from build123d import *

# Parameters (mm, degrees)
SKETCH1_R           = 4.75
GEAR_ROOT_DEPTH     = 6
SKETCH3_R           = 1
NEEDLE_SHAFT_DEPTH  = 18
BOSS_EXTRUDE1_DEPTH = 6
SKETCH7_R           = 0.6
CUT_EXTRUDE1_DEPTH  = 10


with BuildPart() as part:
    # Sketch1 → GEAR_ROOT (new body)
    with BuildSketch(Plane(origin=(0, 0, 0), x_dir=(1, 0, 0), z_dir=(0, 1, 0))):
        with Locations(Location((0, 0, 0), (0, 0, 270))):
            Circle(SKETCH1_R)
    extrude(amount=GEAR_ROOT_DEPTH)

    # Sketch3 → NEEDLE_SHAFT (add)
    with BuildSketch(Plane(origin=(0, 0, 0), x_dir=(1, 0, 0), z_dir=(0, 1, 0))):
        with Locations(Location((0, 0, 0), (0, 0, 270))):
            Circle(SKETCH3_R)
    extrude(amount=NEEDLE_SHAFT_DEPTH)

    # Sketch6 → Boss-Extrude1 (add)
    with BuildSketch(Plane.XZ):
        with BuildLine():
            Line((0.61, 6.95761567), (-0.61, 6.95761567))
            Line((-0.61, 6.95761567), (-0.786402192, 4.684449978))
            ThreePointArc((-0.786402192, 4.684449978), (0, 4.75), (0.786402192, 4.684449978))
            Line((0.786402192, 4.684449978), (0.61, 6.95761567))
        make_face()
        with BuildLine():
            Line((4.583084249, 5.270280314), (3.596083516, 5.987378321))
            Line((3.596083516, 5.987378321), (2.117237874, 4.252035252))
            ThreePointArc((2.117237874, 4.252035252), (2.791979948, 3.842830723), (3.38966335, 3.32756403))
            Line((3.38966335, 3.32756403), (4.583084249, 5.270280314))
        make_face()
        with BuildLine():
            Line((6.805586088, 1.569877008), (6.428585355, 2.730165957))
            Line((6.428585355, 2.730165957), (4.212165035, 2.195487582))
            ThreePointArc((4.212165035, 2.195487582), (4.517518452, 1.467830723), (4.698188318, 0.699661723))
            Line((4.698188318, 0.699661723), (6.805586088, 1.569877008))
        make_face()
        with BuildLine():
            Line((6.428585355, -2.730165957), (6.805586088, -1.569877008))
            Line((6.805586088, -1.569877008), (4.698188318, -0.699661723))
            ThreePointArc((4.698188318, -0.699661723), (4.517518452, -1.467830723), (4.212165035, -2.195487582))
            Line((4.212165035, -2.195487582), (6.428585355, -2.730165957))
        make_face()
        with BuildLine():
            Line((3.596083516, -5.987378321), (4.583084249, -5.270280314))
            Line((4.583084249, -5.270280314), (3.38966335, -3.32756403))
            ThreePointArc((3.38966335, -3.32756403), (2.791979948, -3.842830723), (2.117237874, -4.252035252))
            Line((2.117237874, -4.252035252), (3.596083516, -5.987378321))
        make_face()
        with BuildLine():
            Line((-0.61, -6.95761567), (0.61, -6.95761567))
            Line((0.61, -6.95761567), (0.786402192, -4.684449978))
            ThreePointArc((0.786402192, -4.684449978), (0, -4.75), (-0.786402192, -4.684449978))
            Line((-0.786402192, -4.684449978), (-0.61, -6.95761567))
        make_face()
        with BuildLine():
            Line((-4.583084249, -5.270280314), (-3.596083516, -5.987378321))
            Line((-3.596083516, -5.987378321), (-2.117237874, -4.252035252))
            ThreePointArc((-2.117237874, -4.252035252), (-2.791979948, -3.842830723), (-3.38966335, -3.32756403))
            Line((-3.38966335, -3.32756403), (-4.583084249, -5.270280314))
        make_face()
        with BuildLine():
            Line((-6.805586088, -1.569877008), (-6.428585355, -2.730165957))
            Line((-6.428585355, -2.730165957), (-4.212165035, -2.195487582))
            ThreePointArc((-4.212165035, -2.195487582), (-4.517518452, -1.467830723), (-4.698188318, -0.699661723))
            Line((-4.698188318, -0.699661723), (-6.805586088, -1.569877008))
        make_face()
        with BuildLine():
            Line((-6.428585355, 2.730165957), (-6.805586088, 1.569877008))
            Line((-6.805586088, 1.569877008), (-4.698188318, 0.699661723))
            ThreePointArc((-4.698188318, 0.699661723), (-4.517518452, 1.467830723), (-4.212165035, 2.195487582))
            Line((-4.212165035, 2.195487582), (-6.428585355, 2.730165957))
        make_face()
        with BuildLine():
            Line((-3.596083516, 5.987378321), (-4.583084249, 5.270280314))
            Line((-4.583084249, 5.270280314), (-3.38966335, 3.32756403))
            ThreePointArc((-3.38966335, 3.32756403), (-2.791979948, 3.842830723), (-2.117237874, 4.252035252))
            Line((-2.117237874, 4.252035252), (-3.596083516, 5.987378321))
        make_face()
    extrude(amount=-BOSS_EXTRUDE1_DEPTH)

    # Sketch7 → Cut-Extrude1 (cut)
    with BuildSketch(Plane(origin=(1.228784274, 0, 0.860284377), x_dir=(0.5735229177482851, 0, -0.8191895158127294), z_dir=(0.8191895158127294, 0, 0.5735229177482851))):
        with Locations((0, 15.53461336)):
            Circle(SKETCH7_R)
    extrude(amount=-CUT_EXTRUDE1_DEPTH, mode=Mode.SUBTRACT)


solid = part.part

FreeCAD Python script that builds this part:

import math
import FreeCAD as App
import Part
import Sketcher
Q = App.Units.Quantity

doc = App.newDocument("Part")
params = doc.addObject("Spreadsheet::Sheet", "Params")
for row, (alias, value) in enumerate([
    ("sketch1_diameter", "9.5 mm"),
    ("pad1_length", "6 mm"),
    ("sketch2_diameter", "2 mm"),
    ("pad2_length", "18 mm"),
    ("sketch3_radius", "4.75 mm"),
    ("sketch3_width", "1.22 mm"),
    ("sketch3_length", "2.28 mm"),
    ("sketch3_length2", "1.22 mm"),
    ("pad3_length", "6 mm"),
    ("sketch4_diameter", "1.2 mm"),
    ("pocket1_length", "10 mm"),
], start=1):
    params.set(f"A{row}", alias)
    params.set(f"B{row}", "=" + value)
    params.setAlias(f"B{row}", alias)

body = doc.addObject("PartDesign::Body", "Body")

# Sketch on XZ plane
sketch1 = body.newObject("Sketcher::SketchObject", "Sketch")
sketch1.AttachmentSupport = (doc.getObject("XZ_Plane"), [""])
sketch1.MapMode = "FlatFace"
sketch1.addGeometry(Part.Circle(App.Vector(0, 0, 0), App.Vector(0, 0, 1), 4.8), False)
sketch1.addConstraint(Sketcher.Constraint("Coincident", 0, 3, -1, 1))
sketch1.addConstraint(Sketcher.Constraint("Diameter", 0, Q("9.5 mm")))
sketch1.setExpression("Constraints[1]", "Params.sketch1_diameter")
pad1 = body.newObject("PartDesign::Pad", "Pad")
pad1.Profile = sketch1
pad1.setExpression("Length", "Params.pad1_length")
pad1.Reversed = True

# Sketch on XZ plane
sketch2 = body.newObject("Sketcher::SketchObject", "Sketch001")
sketch2.AttachmentSupport = (doc.getObject("XZ_Plane"), [""])
sketch2.MapMode = "FlatFace"
sketch2.addGeometry(Part.Circle(App.Vector(0, 0, 0), App.Vector(0, 0, 1), 1), False)
sketch2.addConstraint(Sketcher.Constraint("Coincident", 0, 3, -1, 1))
sketch2.addConstraint(Sketcher.Constraint("Diameter", 0, Q("2 mm")))
sketch2.setExpression("Constraints[1]", "Params.sketch2_diameter")
pad2 = body.newObject("PartDesign::Pad", "Pad001")
pad2.Profile = sketch2
pad2.setExpression("Length", "Params.pad2_length")
pad2.Reversed = True

# Sketch on XZ plane
sketch3 = body.newObject("Sketcher::SketchObject", "Sketch002")
sketch3.AttachmentSupport = (doc.getObject("XZ_Plane"), [""])
sketch3.MapMode = "FlatFace"
sketch3.addGeometry(Part.LineSegment(App.Vector(0.6, 7, 0), App.Vector(-0.6, 7, 0)), False)
sketch3.addGeometry(Part.LineSegment(App.Vector(-0.6, 7, 0), App.Vector(-0.8, 4.7, 0)), False)
sketch3.addGeometry(Part.ArcOfCircle(Part.Circle(App.Vector(0, 0, 0), App.Vector(0, 0, 1), 4.8), math.radians(80.47), math.radians(99.53)), False)
sketch3.addGeometry(Part.LineSegment(App.Vector(0.8, 4.7, 0), App.Vector(0.6, 7, 0)), False)
sketch3.addGeometry(Part.LineSegment(App.Vector(4.6, 5.3, 0), App.Vector(3.6, 6, 0)), False)
sketch3.addGeometry(Part.LineSegment(App.Vector(3.6, 6, 0), App.Vector(2.1, 4.3, 0)), False)
sketch3.addGeometry(Part.ArcOfCircle(Part.Circle(App.Vector(0, 0, 0), App.Vector(0, 0, 1), 4.8), math.radians(44.47), math.radians(63.53)), False)
sketch3.addGeometry(Part.LineSegment(App.Vector(3.4, 3.3, 0), App.Vector(4.6, 5.3, 0)), False)
sketch3.addGeometry(Part.LineSegment(App.Vector(6.8, 1.6, 0), App.Vector(6.4, 2.7, 0)), False)
sketch3.addGeometry(Part.LineSegment(App.Vector(6.4, 2.7, 0), App.Vector(4.2, 2.2, 0)), False)
sketch3.addGeometry(Part.ArcOfCircle(Part.Circle(App.Vector(0, 0, 0), App.Vector(0, 0, 1), 4.8), math.radians(8.47), math.radians(27.53)), False)
sketch3.addGeometry(Part.LineSegment(App.Vector(4.7, 0.7, 0), App.Vector(6.8, 1.6, 0)), False)
sketch3.addGeometry(Part.LineSegment(App.Vector(6.4, -2.7, 0), App.Vector(6.8, -1.6, 0)), False)
sketch3.addGeometry(Part.LineSegment(App.Vector(6.8, -1.6, 0), App.Vector(4.7, -0.7, 0)), False)
sketch3.addGeometry(Part.ArcOfCircle(Part.Circle(App.Vector(0, 0, 0), App.Vector(0, 0, 1), 4.8), math.radians(-27.53), math.radians(-8.47)), False)
sketch3.addGeometry(Part.LineSegment(App.Vector(4.2, -2.2, 0), App.Vector(6.4, -2.7, 0)), False)
sketch3.addGeometry(Part.LineSegment(App.Vector(3.6, -6, 0), App.Vector(4.6, -5.3, 0)), False)
sketch3.addGeometry(Part.LineSegment(App.Vector(4.6, -5.3, 0), App.Vector(3.4, -3.3, 0)), False)
sketch3.addGeometry(Part.ArcOfCircle(Part.Circle(App.Vector(0, 0, 0), App.Vector(0, 0, 1), 4.8), math.radians(-63.53), math.radians(-44.47)), False)
sketch3.addGeometry(Part.LineSegment(App.Vector(2.1, -4.3, 0), App.Vector(3.6, -6, 0)), False)
sketch3.addGeometry(Part.LineSegment(App.Vector(-0.6, -7, 0), App.Vector(0.6, -7, 0)), False)
sketch3.addGeometry(Part.LineSegment(App.Vector(0.6, -7, 0), App.Vector(0.8, -4.7, 0)), False)
sketch3.addGeometry(Part.ArcOfCircle(Part.Circle(App.Vector(0, 0, 0), App.Vector(0, 0, 1), 4.8), math.radians(-99.53), math.radians(-80.47)), False)
sketch3.addGeometry(Part.LineSegment(App.Vector(-0.8, -4.7, 0), App.Vector(-0.6, -7, 0)), False)
sketch3.addGeometry(Part.LineSegment(App.Vector(-4.6, -5.3, 0), App.Vector(-3.6, -6, 0)), False)
sketch3.addGeometry(Part.LineSegment(App.Vector(-3.6, -6, 0), App.Vector(-2.1, -4.3, 0)), False)
sketch3.addGeometry(Part.ArcOfCircle(Part.Circle(App.Vector(0, 0, 0), App.Vector(0, 0, 1), 4.8), math.radians(-135.53), math.radians(-116.47)), False)
sketch3.addGeometry(Part.LineSegment(App.Vector(-3.4, -3.3, 0), App.Vector(-4.6, -5.3, 0)), False)
sketch3.addGeometry(Part.LineSegment(App.Vector(-6.8, -1.6, 0), App.Vector(-6.4, -2.7, 0)), False)
sketch3.addGeometry(Part.LineSegment(App.Vector(-6.4, -2.7, 0), App.Vector(-4.2, -2.2, 0)), False)
sketch3.addGeometry(Part.ArcOfCircle(Part.Circle(App.Vector(0, 0, 0), App.Vector(0, 0, 1), 4.8), math.radians(-171.53), math.radians(-152.47)), False)
sketch3.addGeometry(Part.LineSegment(App.Vector(-4.7, -0.7, 0), App.Vector(-6.8, -1.6, 0)), False)
sketch3.addGeometry(Part.LineSegment(App.Vector(-6.4, 2.7, 0), App.Vector(-6.8, 1.6, 0)), False)
sketch3.addGeometry(Part.LineSegment(App.Vector(-6.8, 1.6, 0), App.Vector(-4.7, 0.7, 0)), False)
sketch3.addGeometry(Part.ArcOfCircle(Part.Circle(App.Vector(0, 0, 0), App.Vector(0, 0, 1), 4.8), math.radians(152.47), math.radians(171.53)), False)
sketch3.addGeometry(Part.LineSegment(App.Vector(-4.2, 2.2, 0), App.Vector(-6.4, 2.7, 0)), False)
sketch3.addGeometry(Part.LineSegment(App.Vector(-3.6, 6, 0), App.Vector(-4.6, 5.3, 0)), False)
sketch3.addGeometry(Part.LineSegment(App.Vector(-4.6, 5.3, 0), App.Vector(-3.4, 3.3, 0)), False)
sketch3.addGeometry(Part.ArcOfCircle(Part.Circle(App.Vector(0, 0, 0), App.Vector(0, 0, 1), 4.8), math.radians(116.47), math.radians(135.53)), False)
sketch3.addGeometry(Part.LineSegment(App.Vector(-2.1, 4.3, 0), App.Vector(-3.6, 6, 0)), False)
sketch3.addConstraint(Sketcher.Constraint("Coincident", 0, 2, 1, 1))
sketch3.addConstraint(Sketcher.Constraint("Coincident", 1, 2, 2, 2))
sketch3.addConstraint(Sketcher.Constraint("Coincident", 2, 1, 3, 1))
sketch3.addConstraint(Sketcher.Constraint("Coincident", 3, 2, 0, 1))
sketch3.addConstraint(Sketcher.Constraint("Coincident", 4, 2, 5, 1))
sketch3.addConstraint(Sketcher.Constraint("Coincident", 5, 2, 6, 2))
sketch3.addConstraint(Sketcher.Constraint("Coincident", 6, 1, 7, 1))
sketch3.addConstraint(Sketcher.Constraint("Coincident", 7, 2, 4, 1))
sketch3.addConstraint(Sketcher.Constraint("Coincident", 8, 2, 9, 1))
sketch3.addConstraint(Sketcher.Constraint("Coincident", 9, 2, 10, 2))
sketch3.addConstraint(Sketcher.Constraint("Coincident", 10, 1, 11, 1))
sketch3.addConstraint(Sketcher.Constraint("Coincident", 11, 2, 8, 1))
sketch3.addConstraint(Sketcher.Constraint("Coincident", 12, 2, 13, 1))
sketch3.addConstraint(Sketcher.Constraint("Coincident", 13, 2, 14, 2))
sketch3.addConstraint(Sketcher.Constraint("Coincident", 14, 1, 15, 1))
sketch3.addConstraint(Sketcher.Constraint("Coincident", 15, 2, 12, 1))
sketch3.addConstraint(Sketcher.Constraint("Coincident", 16, 2, 17, 1))
sketch3.addConstraint(Sketcher.Constraint("Coincident", 17, 2, 18, 2))
sketch3.addConstraint(Sketcher.Constraint("Coincident", 18, 1, 19, 1))
sketch3.addConstraint(Sketcher.Constraint("Coincident", 19, 2, 16, 1))
sketch3.addConstraint(Sketcher.Constraint("Coincident", 20, 2, 21, 1))
sketch3.addConstraint(Sketcher.Constraint("Coincident", 21, 2, 22, 2))
sketch3.addConstraint(Sketcher.Constraint("Coincident", 22, 1, 23, 1))
sketch3.addConstraint(Sketcher.Constraint("Coincident", 23, 2, 20, 1))
sketch3.addConstraint(Sketcher.Constraint("Coincident", 24, 2, 25, 1))
sketch3.addConstraint(Sketcher.Constraint("Coincident", 25, 2, 26, 2))
sketch3.addConstraint(Sketcher.Constraint("Coincident", 26, 1, 27, 1))
sketch3.addConstraint(Sketcher.Constraint("Coincident", 27, 2, 24, 1))
sketch3.addConstraint(Sketcher.Constraint("Coincident", 28, 2, 29, 1))
sketch3.addConstraint(Sketcher.Constraint("Coincident", 29, 2, 30, 2))
sketch3.addConstraint(Sketcher.Constraint("Coincident", 30, 1, 31, 1))
sketch3.addConstraint(Sketcher.Constraint("Coincident", 31, 2, 28, 1))
sketch3.addConstraint(Sketcher.Constraint("Coincident", 32, 2, 33, 1))
sketch3.addConstraint(Sketcher.Constraint("Coincident", 33, 2, 34, 2))
sketch3.addConstraint(Sketcher.Constraint("Coincident", 34, 1, 35, 1))
sketch3.addConstraint(Sketcher.Constraint("Coincident", 35, 2, 32, 1))
sketch3.addConstraint(Sketcher.Constraint("Coincident", 36, 2, 37, 1))
sketch3.addConstraint(Sketcher.Constraint("Coincident", 37, 2, 38, 2))
sketch3.addConstraint(Sketcher.Constraint("Coincident", 38, 1, 39, 1))
sketch3.addConstraint(Sketcher.Constraint("Coincident", 39, 2, 36, 1))
sketch3.addConstraint(Sketcher.Constraint("Horizontal", 0))
sketch3.addConstraint(Sketcher.Constraint("Horizontal", 20))
sketch3.addConstraint(Sketcher.Constraint("Coincident", 2, 3, -1, 1))
sketch3.addConstraint(Sketcher.Constraint("Coincident", 6, 3, -1, 1))
sketch3.addConstraint(Sketcher.Constraint("Coincident", 10, 3, -1, 1))
sketch3.addConstraint(Sketcher.Constraint("Coincident", 14, 3, -1, 1))
sketch3.addConstraint(Sketcher.Constraint("Coincident", 18, 3, -1, 1))
sketch3.addConstraint(Sketcher.Constraint("Coincident", 22, 3, -1, 1))
sketch3.addConstraint(Sketcher.Constraint("Coincident", 26, 3, -1, 1))
sketch3.addConstraint(Sketcher.Constraint("Coincident", 30, 3, -1, 1))
sketch3.addConstraint(Sketcher.Constraint("Coincident", 34, 3, -1, 1))
sketch3.addConstraint(Sketcher.Constraint("Coincident", 38, 3, -1, 1))
sketch3.addConstraint(Sketcher.Constraint("Equal", 2, 6))
sketch3.addConstraint(Sketcher.Constraint("Equal", 6, 10))
sketch3.addConstraint(Sketcher.Constraint("Equal", 10, 14))
sketch3.addConstraint(Sketcher.Constraint("Equal", 14, 18))
sketch3.addConstraint(Sketcher.Constraint("Equal", 18, 22))
sketch3.addConstraint(Sketcher.Constraint("Equal", 22, 26))
sketch3.addConstraint(Sketcher.Constraint("Equal", 26, 30))
sketch3.addConstraint(Sketcher.Constraint("Equal", 30, 34))
sketch3.addConstraint(Sketcher.Constraint("Equal", 34, 38))
sketch3.addConstraint(Sketcher.Constraint("Symmetric", 0, 2, 20, 2, -1, 1))
sketch3.addConstraint(Sketcher.Constraint("Symmetric", 4, 2, 24, 2, -1, 1))
sketch3.addConstraint(Sketcher.Constraint("Symmetric", 7, 2, 27, 2, -1, 1))
sketch3.addConstraint(Sketcher.Constraint("Symmetric", 8, 2, 28, 2, -1, 1))
sketch3.addConstraint(Sketcher.Constraint("Symmetric", 11, 2, 31, 2, -1, 1))
sketch3.addConstraint(Sketcher.Constraint("Symmetric", 12, 2, 32, 2, -1, 1))
sketch3.addConstraint(Sketcher.Constraint("Symmetric", 15, 2, 35, 2, -1, 1))
sketch3.addConstraint(Sketcher.Constraint("Symmetric", 16, 2, 36, 2, -1, 1))
sketch3.addConstraint(Sketcher.Constraint("Symmetric", 19, 2, 39, 2, -1, 1))
sketch3.addConstraint(Sketcher.Constraint("Symmetric", 19, 2, 24, 2, -2))
sketch3.addConstraint(Sketcher.Constraint("Symmetric", 16, 2, 27, 2, -2))
sketch3.addConstraint(Sketcher.Constraint("Symmetric", 15, 2, 28, 2, -2))
sketch3.addConstraint(Sketcher.Constraint("Symmetric", 12, 2, 31, 2, -2))
sketch3.addConstraint(Sketcher.Constraint("Parallel", 1, 21))
sketch3.addConstraint(Sketcher.Constraint("Parallel", 3, 23))
sketch3.addConstraint(Sketcher.Constraint("Parallel", 5, 25))
sketch3.addConstraint(Sketcher.Constraint("Parallel", 7, 27))
sketch3.addConstraint(Sketcher.Constraint("Parallel", 9, 29))
sketch3.addConstraint(Sketcher.Constraint("Parallel", 11, 31))
sketch3.addConstraint(Sketcher.Constraint("Parallel", 13, 33))
sketch3.addConstraint(Sketcher.Constraint("Parallel", 15, 35))
sketch3.addConstraint(Sketcher.Constraint("Parallel", 17, 37))
sketch3.addConstraint(Sketcher.Constraint("Parallel", 19, 39))
sketch3.addConstraint(Sketcher.Constraint("Horizontal", 1, 2, 2, 1))
sketch3.addConstraint(Sketcher.Constraint("Horizontal", 21, 2, 22, 1))
sketch3.addConstraint(Sketcher.Constraint("Horizontal", 18, 1, 25, 2))
sketch3.addConstraint(Sketcher.Constraint("Horizontal", 17, 2, 26, 1))
sketch3.addConstraint(Sketcher.Constraint("Horizontal", 14, 1, 29, 2))
sketch3.addConstraint(Sketcher.Constraint("Horizontal", 13, 2, 30, 1))
sketch3.addConstraint(Sketcher.Constraint("Vertical", 3, 2, 20, 2))
sketch3.addConstraint(Sketcher.Constraint("Equal", 3, 5))
sketch3.addConstraint(Sketcher.Constraint("Equal", 5, 7))
sketch3.addConstraint(Sketcher.Constraint("Equal", 4, 8))
sketch3.addConstraint(Sketcher.Constraint("Equal", 7, 9))
sketch3.addConstraint(Sketcher.Constraint("Equal", 9, 11))
sketch3.addConstraint(Sketcher.Constraint("Angle", 4, Q("144 deg")))
sketch3.addConstraint(Sketcher.Constraint("Angle", 8, Q("108 deg")))
sketch3.addConstraint(Sketcher.Constraint("Radius", 2, Q("4.75 mm")))
sketch3.addConstraint(Sketcher.Constraint("DistanceX", 0, 2, 0, 1, Q("1.22 mm")))
sketch3.addConstraint(Sketcher.Constraint("Distance", 1, Q("2.28 mm")))
sketch3.addConstraint(Sketcher.Constraint("Distance", 4, Q("1.22 mm")))
sketch3.addConstraint(Sketcher.Constraint("DistanceY", 8, 2, 6, 1, Q("0.597398 mm")))
sketch3.addConstraint(Sketcher.Constraint("DistanceX", 7, 2, 8, 2, Q("1.845501 mm")))
sketch3.addConstraint(Sketcher.Constraint("DistanceX", 6, 1, 9, 2, Q("0.822502 mm")))
sketch3.addConstraint(Sketcher.Constraint("DistanceY", -1, 1, 1, 2, Q("4.68445 mm")))
sketch3.addConstraint(Sketcher.Constraint("DistanceY", -1, 1, 4, 2, Q("5.987378 mm")))
sketch3.setExpression("Constraints[98]", "Params.sketch3_radius")
sketch3.setExpression("Constraints[99]", "Params.sketch3_width")
sketch3.setExpression("Constraints[100]", "Params.sketch3_length")
sketch3.setExpression("Constraints[101]", "Params.sketch3_length2")
pad3 = body.newObject("PartDesign::Pad", "Pad002")
pad3.Profile = sketch3
pad3.setExpression("Length", "Params.pad3_length")
pad3.Reversed = True

# Sketch on an angled plane
sketch4 = body.newObject("Sketcher::SketchObject", "Sketch003")
sketch4.Placement = App.Placement(App.Vector(1.228784, 0, 0.860284), App.Rotation(App.Vector(0.573522918, 0, -0.819189516), App.Vector(0, 1.000000001, 0), App.Vector(0.819189516, 0, 0.573522918), "ZXY"))
sketch4.addGeometry(Part.Circle(App.Vector(0, 15.5, 0), App.Vector(0, 0, 1), 0.6), False)
sketch4.addConstraint(Sketcher.Constraint("PointOnObject", 0, 3, -2))
sketch4.addConstraint(Sketcher.Constraint("Diameter", 0, Q("1.2 mm")))
sketch4.addConstraint(Sketcher.Constraint("DistanceY", -1, 1, 0, 3, Q("15.534613 mm")))
sketch4.setExpression("Constraints[1]", "Params.sketch4_diameter")
pocket1 = body.newObject("PartDesign::Pocket", "Pocket")
pocket1.Profile = sketch4
pocket1.setExpression("Length", "Params.pocket1_length")

doc.recompute()
